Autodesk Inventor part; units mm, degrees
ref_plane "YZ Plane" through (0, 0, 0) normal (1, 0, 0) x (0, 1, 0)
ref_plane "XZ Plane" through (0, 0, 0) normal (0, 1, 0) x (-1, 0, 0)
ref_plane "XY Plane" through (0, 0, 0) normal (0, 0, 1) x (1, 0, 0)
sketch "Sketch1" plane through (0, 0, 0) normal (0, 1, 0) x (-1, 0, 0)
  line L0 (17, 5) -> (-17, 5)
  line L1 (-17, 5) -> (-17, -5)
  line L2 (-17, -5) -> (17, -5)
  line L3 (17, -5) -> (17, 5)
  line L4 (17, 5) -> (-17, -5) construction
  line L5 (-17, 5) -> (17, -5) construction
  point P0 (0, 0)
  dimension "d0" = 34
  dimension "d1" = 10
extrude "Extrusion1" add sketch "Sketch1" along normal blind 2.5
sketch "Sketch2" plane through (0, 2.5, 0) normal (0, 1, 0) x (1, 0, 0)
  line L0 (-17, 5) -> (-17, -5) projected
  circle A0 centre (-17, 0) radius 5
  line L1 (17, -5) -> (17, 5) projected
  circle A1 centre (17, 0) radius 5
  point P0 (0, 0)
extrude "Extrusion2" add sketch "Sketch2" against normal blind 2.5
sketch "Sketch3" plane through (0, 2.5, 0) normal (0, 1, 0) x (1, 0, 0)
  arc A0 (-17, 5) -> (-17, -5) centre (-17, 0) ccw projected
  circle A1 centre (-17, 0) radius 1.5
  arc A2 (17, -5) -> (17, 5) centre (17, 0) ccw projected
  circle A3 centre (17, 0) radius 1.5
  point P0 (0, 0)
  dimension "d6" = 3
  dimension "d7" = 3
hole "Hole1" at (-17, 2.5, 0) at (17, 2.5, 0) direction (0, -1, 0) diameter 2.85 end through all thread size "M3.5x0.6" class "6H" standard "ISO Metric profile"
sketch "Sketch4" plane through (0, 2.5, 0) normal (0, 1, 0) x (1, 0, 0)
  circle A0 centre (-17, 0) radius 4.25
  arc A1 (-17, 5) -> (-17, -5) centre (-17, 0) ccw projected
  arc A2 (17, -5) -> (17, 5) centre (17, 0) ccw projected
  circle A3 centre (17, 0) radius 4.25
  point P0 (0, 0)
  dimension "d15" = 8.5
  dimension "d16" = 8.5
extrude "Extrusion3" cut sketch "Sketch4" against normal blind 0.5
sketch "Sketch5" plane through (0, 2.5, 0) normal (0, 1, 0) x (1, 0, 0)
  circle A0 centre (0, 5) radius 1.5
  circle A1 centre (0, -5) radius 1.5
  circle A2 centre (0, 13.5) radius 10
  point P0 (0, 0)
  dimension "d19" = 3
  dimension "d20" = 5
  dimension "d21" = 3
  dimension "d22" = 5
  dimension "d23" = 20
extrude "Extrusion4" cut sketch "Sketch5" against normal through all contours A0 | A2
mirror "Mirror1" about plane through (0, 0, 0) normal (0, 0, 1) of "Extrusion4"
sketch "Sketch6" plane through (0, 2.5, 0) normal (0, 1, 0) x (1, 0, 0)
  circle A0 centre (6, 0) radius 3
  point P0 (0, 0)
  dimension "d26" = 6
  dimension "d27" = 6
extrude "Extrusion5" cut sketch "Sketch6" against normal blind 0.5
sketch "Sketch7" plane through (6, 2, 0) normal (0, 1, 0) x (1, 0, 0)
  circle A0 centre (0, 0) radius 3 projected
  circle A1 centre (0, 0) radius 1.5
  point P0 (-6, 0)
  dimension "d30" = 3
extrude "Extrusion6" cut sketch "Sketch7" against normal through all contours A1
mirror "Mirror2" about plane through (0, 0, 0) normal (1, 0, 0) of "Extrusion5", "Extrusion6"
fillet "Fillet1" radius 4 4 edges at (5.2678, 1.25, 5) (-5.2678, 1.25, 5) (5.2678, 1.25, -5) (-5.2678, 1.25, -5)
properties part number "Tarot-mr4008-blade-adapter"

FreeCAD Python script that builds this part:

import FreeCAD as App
import Part
import Sketcher

V = App.Vector


def edges_at(feature, points):
    """Names of the edges that pass closest to the given points."""
    edges = feature.Shape.Edges
    near = lambda p: min(range(len(edges)), key=lambda i: edges[i].distToShape(Part.Vertex(*p))[0])
    return sorted({f"Edge{near(p) + 1}" for p in points})

doc = App.newDocument("Part")
body = doc.addObject("PartDesign::Body", "Body")

# Sketch on XZ plane
sketch1 = body.newObject("Sketcher::SketchObject", "Sketch")
sketch1.AttachmentSupport = (doc.getObject("XZ_Plane"), [""])
sketch1.MapMode = "FlatFace"
sketch1.addGeometry([
    Part.LineSegment(V(-17, -5, 0), V(-17, 5, 0)),
    Part.LineSegment(V(-17, 5, 0), V(17, 5, 0)),
    Part.LineSegment(V(17, 5, 0), V(17, -5, 0)),
    Part.LineSegment(V(17, -5, 0), V(-17, -5, 0)),
], False)
sketch1.addConstraint([
    Sketcher.Constraint("Coincident", 0, 2, 1, 1),
    Sketcher.Constraint("Coincident", 1, 2, 2, 1),
    Sketcher.Constraint("Coincident", 2, 2, 3, 1),
    Sketcher.Constraint("Coincident", 3, 2, 0, 1),
    Sketcher.Constraint("Vertical", 0),
    Sketcher.Constraint("Horizontal", 1),
    Sketcher.Constraint("Vertical", 2),
    Sketcher.Constraint("Horizontal", 3),
    Sketcher.Constraint("Symmetric", 0, 2, 2, 2, -1, 1),
    Sketcher.Constraint("DistanceX", 1, 1, 1, 2, 34.0),
    Sketcher.Constraint("DistanceY", 0, 1, 0, 2, 10.0),
])
pad1 = body.newObject("PartDesign::Pad", "Pad")
pad1.Profile = sketch1
pad1.Length = 2.5
pad1.Reversed = True

# Sketch on XZ plane
sketch2 = body.newObject("Sketcher::SketchObject", "Sketch001")
sketch2.AttachmentSupport = (doc.getObject("XZ_Plane"), [""])
sketch2.MapMode = "FlatFace"
sketch2.AttachmentOffset = App.Placement(V(0, 0, -2.5), App.Rotation())
sketch2.addGeometry([
    Part.Circle(V(-17, 0, 0), V(0, 0, 1), 5),
    Part.Circle(V(17, 0, 0), V(0, 0, 1), 5),
], False)
sketch2.addConstraint([
    Sketcher.Constraint("Equal", 0, 1),
    Sketcher.Constraint("Symmetric", 0, 3, 1, 3, -1, 1),
    Sketcher.Constraint("PointOnObject", 0, 3, -1),
    Sketcher.Constraint("Diameter", 0, 10.0),
    Sketcher.Constraint("DistanceX", 0, 3, -1, 1, 17.0),
])
pad2 = body.newObject("PartDesign::Pad", "Pad001")
pad2.Profile = sketch2
pad2.Length = 2.5

# Sketch on XZ plane
sketch3 = body.newObject("Sketcher::SketchObject", "Sketch002")
sketch3.AttachmentSupport = (doc.getObject("XZ_Plane"), [""])
sketch3.MapMode = "FlatFace"
sketch3.AttachmentOffset = App.Placement(V(0, 0, -2.5), App.Rotation())
sketch3.addGeometry([
    Part.Circle(V(-17, 0, 0), V(0, 0, 1), 1.4),
    Part.Circle(V(17, 0, 0), V(0, 0, 1), 1.4),
], False)
sketch3.addConstraint([
    Sketcher.Constraint("Equal", 0, 1),
    Sketcher.Constraint("Symmetric", 0, 3, 1, 3, -1, 1),
    Sketcher.Constraint("PointOnObject", 0, 3, -1),
    Sketcher.Constraint("Diameter", 0, 2.85),
    Sketcher.Constraint("DistanceX", 0, 3, -1, 1, 17.0),
])
doc.recompute()
hole = body.newObject("PartDesign::Hole", "Hole")
hole.Profile = sketch3
hole.ThreadType = "None"
hole.Diameter = 2.85
hole.DepthType = "ThroughAll"
hole.Reversed = True

# Sketch on XZ plane
sketch4 = body.newObject("Sketcher::SketchObject", "Sketch003")
sketch4.AttachmentSupport = (doc.getObject("XZ_Plane"), [""])
sketch4.MapMode = "FlatFace"
sketch4.AttachmentOffset = App.Placement(V(0, 0, -2.5), App.Rotation())
sketch4.addGeometry([
    Part.Circle(V(-17, 0, 0), V(0, 0, 1), 4.2),
    Part.Circle(V(17, 0, 0), V(0, 0, 1), 4.2),
], False)
sketch4.addConstraint([
    Sketcher.Constraint("Equal", 0, 1),
    Sketcher.Constraint("Symmetric", 0, 3, 1, 3, -1, 1),
    Sketcher.Constraint("PointOnObject", 0, 3, -1),
    Sketcher.Constraint("Diameter", 0, 8.5),
    Sketcher.Constraint("DistanceX", 0, 3, -1, 1, 17.0),
])
pocket1 = body.newObject("PartDesign::Pocket", "Pocket")
pocket1.Profile = sketch4
pocket1.Length = 0.5
pocket1.Reversed = True

# Sketch on XZ plane
sketch5 = body.newObject("Sketcher::SketchObject", "Sketch004")
sketch5.AttachmentSupport = (doc.getObject("XZ_Plane"), [""])
sketch5.MapMode = "FlatFace"
sketch5.AttachmentOffset = App.Placement(V(0, 0, -2.5), App.Rotation())
sketch5.addGeometry(Part.Circle(V(0, -14, 0), V(0, 0, 1), 10), False)
sketch5.addConstraint([
    Sketcher.Constraint("PointOnObject", 0, 3, -2),
    Sketcher.Constraint("Diameter", 0, 20.0),
    Sketcher.Constraint("DistanceY", 0, 3, -1, 1, 13.5),
])
pocket2 = body.newObject("PartDesign::Pocket", "Pocket001")
pocket2.Profile = sketch5
pocket2.Type = "ThroughAll"
pocket2.Reversed = True
doc.recompute()

mirrored = body.newObject("PartDesign::Mirrored", "Mirrored")
mirrored.Originals = [pocket2]
mirrored.MirrorPlane = (doc.getObject("XY_Plane"), [""])
body.Tip = mirrored

# Sketch on XZ plane
sketch6 = body.newObject("Sketcher::SketchObject", "Sketch005")
sketch6.AttachmentSupport = (doc.getObject("XZ_Plane"), [""])
sketch6.MapMode = "FlatFace"
sketch6.AttachmentOffset = App.Placement(V(0, 0, -2.5), App.Rotation())
sketch6.addGeometry(Part.Circle(V(6, 0, 0), V(0, 0, 1), 3), False)
sketch6.addConstraint([
    Sketcher.Constraint("PointOnObject", 0, 3, -1),
    Sketcher.Constraint("Diameter", 0, 6.0),
    Sketcher.Constraint("DistanceX", -1, 1, 0, 3, 6.0),
])
pocket3 = body.newObject("PartDesign::Pocket", "Pocket002")
pocket3.Profile = sketch6
pocket3.Length = 0.5
pocket3.Reversed = True

# Sketch on XZ plane
sketch7 = body.newObject("Sketcher::SketchObject", "Sketch006")
sketch7.AttachmentSupport = (doc.getObject("XZ_Plane"), [""])
sketch7.MapMode = "FlatFace"
sketch7.AttachmentOffset = App.Placement(V(0, 0, -2), App.Rotation())
sketch7.addGeometry(Part.Circle(V(6, 0, 0), V(0, 0, 1), 1.5), False)
sketch7.addConstraint([
    Sketcher.Constraint("PointOnObject", 0, 3, -1),
    Sketcher.Constraint("Diameter", 0, 3.0),
    Sketcher.Constraint("DistanceX", -1, 1, 0, 3, 6.0),
])
pocket4 = body.newObject("PartDesign::Pocket", "Pocket003")
pocket4.Profile = sketch7
pocket4.Type = "ThroughAll"
pocket4.Reversed = True
doc.recompute()

mirrored2 = body.newObject("PartDesign::Mirrored", "Mirrored001")
mirrored2.Originals = [pocket3, pocket4]
mirrored2.MirrorPlane = (doc.getObject("YZ_Plane"), [""])
body.Tip = mirrored2
doc.recompute()

fillet = body.newObject("PartDesign::Fillet", "Fillet")
fillet.Base = (mirrored2, edges_at(mirrored2, [
    (5.268, 1.25, 5),
    (-5.268, 1.25, 5),
    (5.268, 1.25, -5),
    (-5.268, 1.25, -5),
]))
fillet.Radius = 4

doc.recompute()
